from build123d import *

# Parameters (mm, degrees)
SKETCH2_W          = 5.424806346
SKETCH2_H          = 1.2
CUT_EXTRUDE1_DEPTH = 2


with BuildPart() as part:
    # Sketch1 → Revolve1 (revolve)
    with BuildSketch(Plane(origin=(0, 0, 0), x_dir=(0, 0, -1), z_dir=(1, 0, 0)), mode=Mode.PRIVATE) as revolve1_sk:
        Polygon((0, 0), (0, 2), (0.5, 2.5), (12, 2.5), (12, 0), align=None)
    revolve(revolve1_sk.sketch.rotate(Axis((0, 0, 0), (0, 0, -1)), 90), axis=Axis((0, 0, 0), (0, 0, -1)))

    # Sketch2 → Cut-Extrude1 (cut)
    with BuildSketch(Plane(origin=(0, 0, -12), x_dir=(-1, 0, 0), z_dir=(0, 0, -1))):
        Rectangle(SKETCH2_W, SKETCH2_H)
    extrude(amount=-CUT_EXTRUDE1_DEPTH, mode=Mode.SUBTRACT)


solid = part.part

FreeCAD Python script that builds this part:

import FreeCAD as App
import Part
import Sketcher
from FreeCAD import Vector
Q = App.Units.Quantity


def add_polygon(sketch, points):
    """Adds a closed chain of lines whose ends are joined by coincident constraints."""
    first, n = sketch.GeometryCount, len(points)
    for a, b in zip(points, points[1:] + points[:1]):
        sketch.addGeometry(Part.LineSegment(App.Vector(*a, 0), App.Vector(*b, 0)), False)
    for i in range(n):
        sketch.addConstraint(Sketcher.Constraint("Coincident", first + i, 2, first + (i + 1) % n, 1))

doc = App.newDocument("Part")
body = doc.addObject("PartDesign::Body", "Body")

# Sketch on YZ plane
sketch1 = doc.addObject("Sketcher::SketchObject", "Sketch")
body.addObject(sketch1)
sketch1.AttachmentSupport = (doc.YZ_Plane, [""])
sketch1.MapMode = "FlatFace"
add_polygon(sketch1, [(2, 0), (0, 0), (0, -12), (2.5, -12), (2.5, -0.5)])  # lines 0-4
sketch1.addConstraint([
    Sketcher.Constraint("Horizontal", 0),
    Sketcher.Constraint("Vertical", 1),
    Sketcher.Constraint("Horizontal", 2),
    Sketcher.Constraint("Vertical", 3),
    Sketcher.Constraint("Coincident", 0, 2, -1, 1),
    Sketcher.Constraint("DistanceX", 0, 2, 0, 1, Q("2 mm")),
    Sketcher.Constraint("DistanceY", 1, 2, 1, 1, Q("12 mm")),
    Sketcher.Constraint("Angle", 4, Q("135 deg")),
    Sketcher.Constraint("DistanceX", 2, 1, 2, 2, Q("2.5 mm")),
])
revolution = doc.addObject("PartDesign::Revolution", "Revolution")
body.addObject(revolution)
revolution.Profile = sketch1
revolution.ReferenceAxis = (sketch1, ["V_Axis"])
revolution.Angle = 360

# Sketch on XY plane
sketch2 = doc.addObject("Sketcher::SketchObject", "Sketch001")
body.addObject(sketch2)
sketch2.AttachmentSupport = (doc.XY_Plane, [""])
sketch2.MapMode = "FlatFace"
sketch2.AttachmentOffset = App.Placement(Vector(0, 0, -12), App.Rotation())
add_polygon(sketch2, [(2.712403, 0.6), (2.712403, -0.6), (-2.712403, -0.6), (-2.712403, 0.6)])  # lines 0-3
sketch2.addConstraint([
    Sketcher.Constraint("Vertical", 0),
    Sketcher.Constraint("Horizontal", 1),
    Sketcher.Constraint("Vertical", 2),
    Sketcher.Constraint("Horizontal", 3),
    Sketcher.Constraint("Symmetric", 0, 2, 2, 2, -1, 1),
    Sketcher.Constraint("DistanceY", 0, 2, 0, 1, Q("1.2 mm")),
    Sketcher.Constraint("DistanceX", 1, 2, 1, 1, Q("5.424806 mm")),
])
pocket1 = doc.addObject("PartDesign::Pocket", "Pocket")
body.addObject(pocket1)
pocket1.Profile = sketch2
pocket1.Length = 2
pocket1.Reversed = True

doc.recompute()
